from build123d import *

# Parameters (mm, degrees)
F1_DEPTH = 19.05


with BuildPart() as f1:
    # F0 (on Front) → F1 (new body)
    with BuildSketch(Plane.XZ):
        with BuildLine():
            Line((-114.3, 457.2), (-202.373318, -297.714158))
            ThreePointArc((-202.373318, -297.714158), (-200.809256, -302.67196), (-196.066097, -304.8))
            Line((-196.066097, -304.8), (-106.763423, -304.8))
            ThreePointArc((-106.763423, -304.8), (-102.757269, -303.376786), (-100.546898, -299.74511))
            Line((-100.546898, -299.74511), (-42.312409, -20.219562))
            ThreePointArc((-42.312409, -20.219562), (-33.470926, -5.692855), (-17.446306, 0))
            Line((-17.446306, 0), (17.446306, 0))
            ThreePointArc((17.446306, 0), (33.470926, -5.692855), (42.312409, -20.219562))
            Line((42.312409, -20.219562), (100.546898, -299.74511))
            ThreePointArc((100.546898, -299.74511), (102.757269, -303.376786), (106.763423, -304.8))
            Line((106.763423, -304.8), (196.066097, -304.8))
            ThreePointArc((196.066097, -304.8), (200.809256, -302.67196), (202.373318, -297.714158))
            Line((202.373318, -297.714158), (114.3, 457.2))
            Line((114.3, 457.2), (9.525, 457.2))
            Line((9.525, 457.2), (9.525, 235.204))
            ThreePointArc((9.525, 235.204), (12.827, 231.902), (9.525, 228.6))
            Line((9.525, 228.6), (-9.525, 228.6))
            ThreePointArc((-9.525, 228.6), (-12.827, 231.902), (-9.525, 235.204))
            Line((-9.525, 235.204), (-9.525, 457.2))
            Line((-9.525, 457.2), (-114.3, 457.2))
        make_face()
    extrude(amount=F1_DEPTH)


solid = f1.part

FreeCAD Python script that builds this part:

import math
import FreeCAD as App
import Part
import Sketcher
from FreeCAD import Vector
Q = App.Units.Quantity

doc = App.newDocument("Part")
body = doc.addObject("PartDesign::Body", "Body")

# Sketch on XZ plane
sketch1 = body.newObject("Sketcher::SketchObject", "Sketch")
sketch1.AttachmentSupport = (doc.getObject("XZ_Plane"), [""])
sketch1.MapMode = "FlatFace"
sketch1.addGeometry([
    Part.LineSegment(Vector(-114.3, 457.2, 0), Vector(-202.373318, -297.714158, 0)),  # 0
    Part.ArcOfCircle(Part.Circle(Vector(-196.066098, -298.450001, 0), Vector(0, 0, 1), 6.349999), math.radians(173.345574), math.radians(270.000006)),  # 1
    Part.LineSegment(Vector(-196.066097, -304.8, 0), Vector(-106.763423, -304.8, 0)),  # 2
    Part.ArcOfCircle(Part.Circle(Vector(-106.763425, -298.449999, 0), Vector(0, 0, 1), 6.350001), math.radians(-89.999984), math.radians(-11.768304)),  # 3
    Part.LineSegment(Vector(-100.546898, -299.74511, 0), Vector(-42.312409, -20.219562, 0)),  # 4
    Part.ArcOfCircle(Part.Circle(Vector(-17.446306, -25.4, 0), Vector(0, 0, 1), 25.4), math.radians(89.999999), math.radians(168.231711)),  # 5
    Part.LineSegment(Vector(-17.446306, 0, 0), Vector(17.446306, 0, 0)),  # 6
    Part.ArcOfCircle(Part.Circle(Vector(17.446306, -25.4, 0), Vector(0, 0, 1), 25.4), math.radians(11.768289), math.radians(90.000001)),  # 7
    Part.LineSegment(Vector(42.312409, -20.219562, 0), Vector(100.546898, -299.74511, 0)),  # 8
    Part.ArcOfCircle(Part.Circle(Vector(106.763425, -298.449999, 0), Vector(0, 0, 1), 6.350001), math.radians(-168.231696), math.radians(-90.000016)),  # 9
    Part.LineSegment(Vector(106.763423, -304.8, 0), Vector(196.066097, -304.8, 0)),  # 10
    Part.ArcOfCircle(Part.Circle(Vector(196.066098, -298.450001, 0), Vector(0, 0, 1), 6.349999), math.radians(-90.000006), math.radians(6.654426)),  # 11
    Part.LineSegment(Vector(202.373318, -297.714158, 0), Vector(114.3, 457.2, 0)),  # 12
    Part.LineSegment(Vector(114.3, 457.2, 0), Vector(9.525, 457.2, 0)),  # 13
    Part.LineSegment(Vector(9.525, 457.2, 0), Vector(9.525, 235.204, 0)),  # 14
    Part.ArcOfCircle(Part.Circle(Vector(9.525, 231.902, 0), Vector(0, 0, 1), 3.302), math.radians(-90), math.radians(90)),  # 15
    Part.LineSegment(Vector(9.525, 228.6, 0), Vector(-9.525, 228.6, 0)),  # 16
    Part.ArcOfCircle(Part.Circle(Vector(-9.525, 231.902, 0), Vector(0, 0, 1), 3.302), math.radians(90), math.radians(270)),  # 17
    Part.LineSegment(Vector(-9.525, 235.204, 0), Vector(-9.525, 457.2, 0)),  # 18
    Part.LineSegment(Vector(-9.525, 457.2, 0), Vector(-114.3, 457.2, 0)),  # 19
], False)
sketch1.addConstraint([
    Sketcher.Constraint("Tangent", 0, 2, 1, 1),
    Sketcher.Constraint("Tangent", 1, 2, 2, 1),
    Sketcher.Constraint("Tangent", 2, 2, 3, 1),
    Sketcher.Constraint("Tangent", 3, 2, 4, 1),
    Sketcher.Constraint("Tangent", 4, 2, 5, 2),
    Sketcher.Constraint("Tangent", 5, 1, 6, 1),
    Sketcher.Constraint("Tangent", 6, 2, 7, 2),
    Sketcher.Constraint("Tangent", 7, 1, 8, 1),
    Sketcher.Constraint("Tangent", 8, 2, 9, 1),
    Sketcher.Constraint("Tangent", 9, 2, 10, 1),
    Sketcher.Constraint("Tangent", 10, 2, 11, 1),
    Sketcher.Constraint("Tangent", 11, 2, 12, 1),
    Sketcher.Constraint("Coincident", 12, 2, 13, 1),
    Sketcher.Constraint("Coincident", 13, 2, 14, 1),
    Sketcher.Constraint("Coincident", 14, 2, 15, 2),
    Sketcher.Constraint("Tangent", 15, 1, 16, 1),
    Sketcher.Constraint("Tangent", 16, 2, 17, 2),
    Sketcher.Constraint("Coincident", 17, 1, 18, 1),
    Sketcher.Constraint("Coincident", 18, 2, 19, 1),
    Sketcher.Constraint("Coincident", 19, 2, 0, 1),
    Sketcher.Constraint("Horizontal", 2),
    Sketcher.Constraint("Horizontal", 6),
    Sketcher.Constraint("Horizontal", 10),
    Sketcher.Constraint("Horizontal", 13),
    Sketcher.Constraint("Vertical", 14),
    Sketcher.Constraint("Horizontal", 16),
    Sketcher.Constraint("Vertical", 18),
    Sketcher.Constraint("Horizontal", 19),
    Sketcher.Constraint("Equal", 1, 3),
    Sketcher.Constraint("Equal", 5, 7),
    Sketcher.Constraint("Equal", 3, 9),
    Sketcher.Constraint("Equal", 9, 11),
    Sketcher.Constraint("Equal", 15, 17),
    Sketcher.Constraint("Symmetric", 5, 1, 6, 2, -1, 1),
    Sketcher.Constraint("Symmetric", 3, 3, 9, 3, -2),
    Sketcher.Constraint("Symmetric", 13, 2, 18, 2, -2),
    Sketcher.Constraint("Vertical", 15, 3, 13, 2),
    Sketcher.Constraint("Vertical", 16, 2, 17, 1),
    Sketcher.Constraint("Equal", 2, 10),
    Sketcher.Constraint("Equal", 13, 19),
    Sketcher.Constraint("Radius", 5, Q("1 in")),
    Sketcher.Constraint("Radius", 1, Q("0.25 in")),
    Sketcher.Constraint("Radius", 15, Q("0.13 in")),
    Sketcher.Constraint("DistanceY", 1, 2, -1, 1, Q("12 in")),
    Sketcher.Constraint("DistanceY", -1, 1, 12, 2, Q("18 in")),
    Sketcher.Constraint("DistanceY", -1, 1, 15, 1, Q("9 in")),
    Sketcher.Constraint("DistanceX", 19, 2, 12, 2, Q("9 in")),
    Sketcher.Constraint("DistanceX", 16, 2, 16, 1, Q("0.75 in")),
    Sketcher.Constraint("DistanceX", 1, 3, 7, 3, Q("8.4060002 in")),
    Sketcher.Constraint("DistanceX", -1, 1, 8, 2, Q("100.546898 mm")),
    Sketcher.Constraint("DistanceX", 1, 3, 3, 2, Q("95.5192 mm")),
])
pad1 = body.newObject("PartDesign::Pad", "Pad")
pad1.Profile = sketch1
pad1.Length = Q("0.75 in")

doc.recompute()
